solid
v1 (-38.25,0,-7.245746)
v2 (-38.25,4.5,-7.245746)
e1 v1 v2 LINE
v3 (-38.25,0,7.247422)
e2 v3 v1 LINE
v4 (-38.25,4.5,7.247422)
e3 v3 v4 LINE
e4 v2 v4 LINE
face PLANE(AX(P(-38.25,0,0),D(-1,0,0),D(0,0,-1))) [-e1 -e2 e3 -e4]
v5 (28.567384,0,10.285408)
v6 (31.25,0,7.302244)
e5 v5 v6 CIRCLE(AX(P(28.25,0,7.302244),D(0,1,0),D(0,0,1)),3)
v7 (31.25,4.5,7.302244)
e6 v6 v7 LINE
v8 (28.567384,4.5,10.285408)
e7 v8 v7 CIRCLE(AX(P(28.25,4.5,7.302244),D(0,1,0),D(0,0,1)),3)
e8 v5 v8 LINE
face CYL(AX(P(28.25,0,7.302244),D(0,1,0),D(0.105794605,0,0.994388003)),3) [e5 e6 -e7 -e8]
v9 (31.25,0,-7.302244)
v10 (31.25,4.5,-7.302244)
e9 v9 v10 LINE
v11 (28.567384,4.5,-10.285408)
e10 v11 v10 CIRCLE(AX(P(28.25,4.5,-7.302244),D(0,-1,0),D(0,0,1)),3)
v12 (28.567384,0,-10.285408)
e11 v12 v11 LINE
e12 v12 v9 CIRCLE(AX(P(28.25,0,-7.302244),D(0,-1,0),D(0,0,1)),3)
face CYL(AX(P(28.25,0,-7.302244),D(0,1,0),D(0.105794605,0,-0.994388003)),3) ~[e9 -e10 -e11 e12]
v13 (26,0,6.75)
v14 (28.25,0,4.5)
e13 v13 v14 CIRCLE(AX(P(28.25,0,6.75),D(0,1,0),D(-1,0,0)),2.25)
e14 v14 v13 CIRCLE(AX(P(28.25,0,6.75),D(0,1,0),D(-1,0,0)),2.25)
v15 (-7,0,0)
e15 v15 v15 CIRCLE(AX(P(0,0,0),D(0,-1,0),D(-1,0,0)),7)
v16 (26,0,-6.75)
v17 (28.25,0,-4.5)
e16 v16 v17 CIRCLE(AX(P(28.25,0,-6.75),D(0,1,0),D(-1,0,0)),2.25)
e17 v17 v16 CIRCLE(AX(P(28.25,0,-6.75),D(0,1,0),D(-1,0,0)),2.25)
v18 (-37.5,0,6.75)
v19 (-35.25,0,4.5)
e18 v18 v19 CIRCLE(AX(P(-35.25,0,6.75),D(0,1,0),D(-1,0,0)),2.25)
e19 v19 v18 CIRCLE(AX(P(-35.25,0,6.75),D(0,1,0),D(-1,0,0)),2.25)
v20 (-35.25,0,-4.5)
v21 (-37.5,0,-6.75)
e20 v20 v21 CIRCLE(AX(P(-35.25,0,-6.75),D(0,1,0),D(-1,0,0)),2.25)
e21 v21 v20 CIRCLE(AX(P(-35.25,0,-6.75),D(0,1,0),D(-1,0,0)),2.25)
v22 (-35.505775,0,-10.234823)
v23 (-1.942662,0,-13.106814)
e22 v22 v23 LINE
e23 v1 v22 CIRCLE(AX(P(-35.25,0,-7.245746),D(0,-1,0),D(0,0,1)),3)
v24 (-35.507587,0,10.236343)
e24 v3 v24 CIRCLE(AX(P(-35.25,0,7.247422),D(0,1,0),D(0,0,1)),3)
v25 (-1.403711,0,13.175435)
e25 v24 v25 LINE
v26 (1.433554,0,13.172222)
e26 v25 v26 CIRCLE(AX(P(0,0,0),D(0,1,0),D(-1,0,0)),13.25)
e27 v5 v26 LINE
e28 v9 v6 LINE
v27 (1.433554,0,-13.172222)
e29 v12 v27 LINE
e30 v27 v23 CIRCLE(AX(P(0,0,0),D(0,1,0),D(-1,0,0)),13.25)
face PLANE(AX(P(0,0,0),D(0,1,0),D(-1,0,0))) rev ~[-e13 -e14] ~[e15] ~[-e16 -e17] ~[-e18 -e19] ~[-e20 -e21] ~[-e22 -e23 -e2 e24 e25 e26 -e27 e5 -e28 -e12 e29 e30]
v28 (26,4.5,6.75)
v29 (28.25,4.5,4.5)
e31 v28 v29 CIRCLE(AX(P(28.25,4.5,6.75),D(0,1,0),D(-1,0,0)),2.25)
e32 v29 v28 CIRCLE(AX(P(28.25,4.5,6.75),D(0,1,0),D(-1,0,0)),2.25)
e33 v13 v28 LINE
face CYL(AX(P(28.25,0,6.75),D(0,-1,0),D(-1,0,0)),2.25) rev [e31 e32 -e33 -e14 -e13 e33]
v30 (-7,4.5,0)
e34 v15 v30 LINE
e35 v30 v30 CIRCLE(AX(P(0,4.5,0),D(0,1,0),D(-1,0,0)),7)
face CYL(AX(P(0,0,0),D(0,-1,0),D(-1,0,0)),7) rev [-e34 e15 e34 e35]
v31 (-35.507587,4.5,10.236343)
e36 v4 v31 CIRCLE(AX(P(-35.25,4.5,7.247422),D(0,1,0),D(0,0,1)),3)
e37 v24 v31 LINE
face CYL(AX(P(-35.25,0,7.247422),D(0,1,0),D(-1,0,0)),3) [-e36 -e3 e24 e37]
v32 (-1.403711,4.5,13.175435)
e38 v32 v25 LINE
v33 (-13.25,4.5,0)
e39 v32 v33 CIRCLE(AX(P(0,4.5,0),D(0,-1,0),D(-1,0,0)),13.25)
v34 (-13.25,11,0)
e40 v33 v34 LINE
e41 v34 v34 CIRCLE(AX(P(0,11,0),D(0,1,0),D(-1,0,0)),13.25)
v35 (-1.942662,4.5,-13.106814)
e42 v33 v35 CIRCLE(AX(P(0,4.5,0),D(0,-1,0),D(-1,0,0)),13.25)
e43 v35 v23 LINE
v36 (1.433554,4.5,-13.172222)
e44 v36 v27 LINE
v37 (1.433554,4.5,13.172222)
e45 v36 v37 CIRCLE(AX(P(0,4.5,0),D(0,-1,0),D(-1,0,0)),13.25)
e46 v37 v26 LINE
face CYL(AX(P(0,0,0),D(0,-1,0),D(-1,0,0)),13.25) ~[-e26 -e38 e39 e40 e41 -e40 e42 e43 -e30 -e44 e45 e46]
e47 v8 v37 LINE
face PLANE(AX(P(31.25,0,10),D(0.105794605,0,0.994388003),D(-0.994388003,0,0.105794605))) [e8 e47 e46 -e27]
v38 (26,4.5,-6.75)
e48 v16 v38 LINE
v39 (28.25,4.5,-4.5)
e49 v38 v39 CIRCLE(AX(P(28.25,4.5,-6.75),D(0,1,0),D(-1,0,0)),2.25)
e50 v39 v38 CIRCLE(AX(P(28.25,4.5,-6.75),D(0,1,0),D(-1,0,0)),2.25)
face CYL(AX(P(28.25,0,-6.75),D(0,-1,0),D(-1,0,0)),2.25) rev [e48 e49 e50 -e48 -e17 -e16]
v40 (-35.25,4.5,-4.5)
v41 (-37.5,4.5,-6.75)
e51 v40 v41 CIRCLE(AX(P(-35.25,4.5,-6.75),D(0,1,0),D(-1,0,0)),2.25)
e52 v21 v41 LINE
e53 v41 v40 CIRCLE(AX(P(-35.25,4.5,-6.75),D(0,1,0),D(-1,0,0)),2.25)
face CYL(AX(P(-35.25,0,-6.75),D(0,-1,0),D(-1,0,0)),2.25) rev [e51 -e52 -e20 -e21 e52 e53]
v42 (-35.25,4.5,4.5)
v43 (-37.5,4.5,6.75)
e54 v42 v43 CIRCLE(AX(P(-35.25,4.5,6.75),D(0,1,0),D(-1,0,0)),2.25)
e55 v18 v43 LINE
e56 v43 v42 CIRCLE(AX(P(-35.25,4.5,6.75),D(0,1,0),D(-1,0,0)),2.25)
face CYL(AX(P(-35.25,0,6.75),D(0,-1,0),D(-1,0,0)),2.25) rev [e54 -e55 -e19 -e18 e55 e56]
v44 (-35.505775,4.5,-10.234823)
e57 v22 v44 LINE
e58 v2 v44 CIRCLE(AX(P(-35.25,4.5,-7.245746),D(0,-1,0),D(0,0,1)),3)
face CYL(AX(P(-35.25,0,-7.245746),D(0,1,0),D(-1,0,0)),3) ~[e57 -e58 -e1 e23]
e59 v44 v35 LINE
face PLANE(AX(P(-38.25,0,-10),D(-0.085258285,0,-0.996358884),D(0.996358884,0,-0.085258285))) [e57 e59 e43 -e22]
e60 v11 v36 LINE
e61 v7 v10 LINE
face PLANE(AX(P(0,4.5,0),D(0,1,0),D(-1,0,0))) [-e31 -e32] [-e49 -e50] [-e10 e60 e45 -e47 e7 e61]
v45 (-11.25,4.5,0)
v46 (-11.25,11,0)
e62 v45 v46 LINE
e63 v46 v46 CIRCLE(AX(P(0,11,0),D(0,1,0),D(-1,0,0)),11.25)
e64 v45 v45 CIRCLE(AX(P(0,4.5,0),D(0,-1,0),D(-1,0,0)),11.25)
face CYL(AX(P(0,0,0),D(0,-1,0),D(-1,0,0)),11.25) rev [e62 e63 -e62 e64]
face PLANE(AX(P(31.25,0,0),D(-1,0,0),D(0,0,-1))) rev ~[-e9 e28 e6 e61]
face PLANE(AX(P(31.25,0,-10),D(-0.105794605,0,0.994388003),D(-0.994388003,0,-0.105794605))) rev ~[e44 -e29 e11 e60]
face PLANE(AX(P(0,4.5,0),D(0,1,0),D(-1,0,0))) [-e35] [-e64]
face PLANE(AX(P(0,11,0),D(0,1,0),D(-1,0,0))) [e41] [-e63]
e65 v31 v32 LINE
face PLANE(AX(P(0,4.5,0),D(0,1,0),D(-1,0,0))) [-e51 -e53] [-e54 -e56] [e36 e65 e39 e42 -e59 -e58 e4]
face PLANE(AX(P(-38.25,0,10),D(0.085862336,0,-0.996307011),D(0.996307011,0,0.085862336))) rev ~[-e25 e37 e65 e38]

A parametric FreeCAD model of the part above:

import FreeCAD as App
import Part
import Sketcher

V = App.Vector
Q = App.Units.Quantity


def edges_at(feature, points):
    """Names of the edges that pass closest to the given points."""
    edges = feature.Shape.Edges
    near = lambda p: min(range(len(edges)), key=lambda i: edges[i].distToShape(Part.Vertex(*p))[0])
    return sorted({f"Edge{near(p) + 1}" for p in points})


def add_polygon(sketch, points):
    """Adds a closed chain of lines whose ends are joined by coincident constraints."""
    first, n = sketch.GeometryCount, len(points)
    for a, b in zip(points, points[1:] + points[:1]):
        sketch.addGeometry(Part.LineSegment(App.Vector(*a, 0), App.Vector(*b, 0)), False)
    for i in range(n):
        sketch.addConstraint(Sketcher.Constraint("Coincident", first + i, 2, first + (i + 1) % n, 1))

doc = App.newDocument("Part")
params = doc.addObject("Spreadsheet::Sheet", "Params")
for row, (alias, value) in enumerate([
    ("sketch1_diameter", "14 mm"),
    ("sketch1_diameter2", "4.5 mm"),
    ("pad1_length", "4.5 mm"),
    ("sketch2_diameter", "26.5 mm"),
    ("sketch2_diameter2", "22.5 mm"),
    ("pad2_length", "11 mm"),
    ("fillet_radius", "3 mm"),
    ("fillet2_radius", "3 mm"),
], start=1):
    params.set(f"A{row}", alias)
    params.set(f"B{row}", "=" + value)
    params.setAlias(f"B{row}", alias)

body = doc.addObject("PartDesign::Body", "Body")

# Sketch on XZ plane
sketch1 = body.newObject("Sketcher::SketchObject", "Sketch")
sketch1.AttachmentSupport = (doc.getObject("XZ_Plane"), [""])
sketch1.MapMode = "FlatFace"
add_polygon(sketch1, [(-38.2, -10), (-38.2, 10), (-1.4, 13.2), (1.4, 13.2), (31.2, 10), (31.2, -10), (1.4, -13.2), (-1.1, -13.2)])  # lines 0-7
sketch1.addGeometry(Part.Circle(V(0, 0, 0), V(0, 0, 1), 7), False)  # 8
sketch1.addGeometry(Part.Circle(V(28.2, -6.8, 0), V(0, 0, 1), 2.2), False)  # 9
sketch1.addGeometry(Part.Circle(V(-35.2, -6.8, 0), V(0, 0, 1), 2.2), False)  # 10
sketch1.addGeometry(Part.Circle(V(-35.2, 6.8, 0), V(0, 0, 1), 2.2), False)  # 11
sketch1.addGeometry(Part.Circle(V(28.2, 6.8, 0), V(0, 0, 1), 2.2), False)  # 12
sketch1.addConstraint([
    Sketcher.Constraint("Vertical", 0),
    Sketcher.Constraint("Horizontal", 2),
    Sketcher.Constraint("Vertical", 4),
    Sketcher.Constraint("Horizontal", 6),
    Sketcher.Constraint("Coincident", 8, 3, -1, 1),
    Sketcher.Constraint("Equal", 9, 10),
    Sketcher.Constraint("Equal", 10, 11),
    Sketcher.Constraint("Equal", 11, 12),
    Sketcher.Constraint("Symmetric", 1, 2, 5, 2, -1, 1),
    Sketcher.Constraint("Symmetric", 10, 3, 11, 3, -1),
    Sketcher.Constraint("Symmetric", 9, 3, 12, 3, -1),
    Sketcher.Constraint("Horizontal", 9, 3, 10, 3),
    Sketcher.Constraint("Horizontal", 0, 2, 3, 2),
    Sketcher.Constraint("Horizontal", 4, 2, 7, 2),
    Sketcher.Constraint("Vertical", 2, 2, 5, 2),
    Sketcher.Constraint("Equal", 3, 5),
    Sketcher.Constraint("Diameter", 8, 14.0),
    Sketcher.Constraint("Diameter", 9, 4.5),
    Sketcher.Constraint("DistanceY", -1, 1, 0, 2, 10.0),
    Sketcher.Constraint("DistanceX", 0, 2, 11, 3, 3.0),
    Sketcher.Constraint("DistanceX", 12, 3, 3, 2, 3.0),
    Sketcher.Constraint("DistanceY", 9, 3, -1, 1, 6.75),
    Sketcher.Constraint("DistanceX", 0, 2, -1, 1, 38.25),
    Sketcher.Constraint("DistanceX", -1, 1, 3, 2, 31.25),
    Sketcher.Constraint("Angle", 7, Q("175.1091 deg")),
    Sketcher.Constraint("DistanceX", 2, 1, 2, 2, 2.8036),
    Sketcher.Constraint("DistanceX", 6, 2, 6, 1, 2.5406),
])
sketch1.setExpression("Constraints[24]", "Params.sketch1_diameter")
sketch1.setExpression("Constraints[25]", "Params.sketch1_diameter2")
pad1 = body.newObject("PartDesign::Pad", "Pad")
pad1.Profile = sketch1
pad1.setExpression("Length", "Params.pad1_length")
pad1.Reversed = True

# Sketch on XZ plane
sketch2 = body.newObject("Sketcher::SketchObject", "Sketch001")
sketch2.AttachmentSupport = (doc.getObject("XZ_Plane"), [""])
sketch2.MapMode = "FlatFace"
sketch2.addGeometry([
    Part.Circle(V(0, 0, 0), V(0, 0, 1), 13),
    Part.Circle(V(0, 0, 0), V(0, 0, 1), 11),
], False)
sketch2.addConstraint([
    Sketcher.Constraint("Coincident", 0, 3, -1, 1),
    Sketcher.Constraint("Coincident", 1, 3, -1, 1),
    Sketcher.Constraint("Diameter", 0, 26.5),
    Sketcher.Constraint("Diameter", 1, 22.5),
])
sketch2.setExpression("Constraints[2]", "Params.sketch2_diameter")
sketch2.setExpression("Constraints[3]", "Params.sketch2_diameter2")
pad2 = body.newObject("PartDesign::Pad", "Pad001")
pad2.Profile = sketch2
pad2.setExpression("Length", "Params.pad2_length")
pad2.Reversed = True
doc.recompute()

fillet = body.newObject("PartDesign::Fillet", "Fillet")
fillet.Base = (pad2, edges_at(pad2, [(-38.25, 2.25, -10)]))
fillet.setExpression("Radius", "Params.fillet_radius")
doc.recompute()

fillet2 = body.newObject("PartDesign::Fillet", "Fillet001")
fillet2.Base = (fillet, edges_at(fillet, [(-38.25, 2.25, 10), (31.25, 2.25, 10), (31.25, 2.25, -10)]))
fillet2.setExpression("Radius", "Params.fillet2_radius")

doc.recompute()
